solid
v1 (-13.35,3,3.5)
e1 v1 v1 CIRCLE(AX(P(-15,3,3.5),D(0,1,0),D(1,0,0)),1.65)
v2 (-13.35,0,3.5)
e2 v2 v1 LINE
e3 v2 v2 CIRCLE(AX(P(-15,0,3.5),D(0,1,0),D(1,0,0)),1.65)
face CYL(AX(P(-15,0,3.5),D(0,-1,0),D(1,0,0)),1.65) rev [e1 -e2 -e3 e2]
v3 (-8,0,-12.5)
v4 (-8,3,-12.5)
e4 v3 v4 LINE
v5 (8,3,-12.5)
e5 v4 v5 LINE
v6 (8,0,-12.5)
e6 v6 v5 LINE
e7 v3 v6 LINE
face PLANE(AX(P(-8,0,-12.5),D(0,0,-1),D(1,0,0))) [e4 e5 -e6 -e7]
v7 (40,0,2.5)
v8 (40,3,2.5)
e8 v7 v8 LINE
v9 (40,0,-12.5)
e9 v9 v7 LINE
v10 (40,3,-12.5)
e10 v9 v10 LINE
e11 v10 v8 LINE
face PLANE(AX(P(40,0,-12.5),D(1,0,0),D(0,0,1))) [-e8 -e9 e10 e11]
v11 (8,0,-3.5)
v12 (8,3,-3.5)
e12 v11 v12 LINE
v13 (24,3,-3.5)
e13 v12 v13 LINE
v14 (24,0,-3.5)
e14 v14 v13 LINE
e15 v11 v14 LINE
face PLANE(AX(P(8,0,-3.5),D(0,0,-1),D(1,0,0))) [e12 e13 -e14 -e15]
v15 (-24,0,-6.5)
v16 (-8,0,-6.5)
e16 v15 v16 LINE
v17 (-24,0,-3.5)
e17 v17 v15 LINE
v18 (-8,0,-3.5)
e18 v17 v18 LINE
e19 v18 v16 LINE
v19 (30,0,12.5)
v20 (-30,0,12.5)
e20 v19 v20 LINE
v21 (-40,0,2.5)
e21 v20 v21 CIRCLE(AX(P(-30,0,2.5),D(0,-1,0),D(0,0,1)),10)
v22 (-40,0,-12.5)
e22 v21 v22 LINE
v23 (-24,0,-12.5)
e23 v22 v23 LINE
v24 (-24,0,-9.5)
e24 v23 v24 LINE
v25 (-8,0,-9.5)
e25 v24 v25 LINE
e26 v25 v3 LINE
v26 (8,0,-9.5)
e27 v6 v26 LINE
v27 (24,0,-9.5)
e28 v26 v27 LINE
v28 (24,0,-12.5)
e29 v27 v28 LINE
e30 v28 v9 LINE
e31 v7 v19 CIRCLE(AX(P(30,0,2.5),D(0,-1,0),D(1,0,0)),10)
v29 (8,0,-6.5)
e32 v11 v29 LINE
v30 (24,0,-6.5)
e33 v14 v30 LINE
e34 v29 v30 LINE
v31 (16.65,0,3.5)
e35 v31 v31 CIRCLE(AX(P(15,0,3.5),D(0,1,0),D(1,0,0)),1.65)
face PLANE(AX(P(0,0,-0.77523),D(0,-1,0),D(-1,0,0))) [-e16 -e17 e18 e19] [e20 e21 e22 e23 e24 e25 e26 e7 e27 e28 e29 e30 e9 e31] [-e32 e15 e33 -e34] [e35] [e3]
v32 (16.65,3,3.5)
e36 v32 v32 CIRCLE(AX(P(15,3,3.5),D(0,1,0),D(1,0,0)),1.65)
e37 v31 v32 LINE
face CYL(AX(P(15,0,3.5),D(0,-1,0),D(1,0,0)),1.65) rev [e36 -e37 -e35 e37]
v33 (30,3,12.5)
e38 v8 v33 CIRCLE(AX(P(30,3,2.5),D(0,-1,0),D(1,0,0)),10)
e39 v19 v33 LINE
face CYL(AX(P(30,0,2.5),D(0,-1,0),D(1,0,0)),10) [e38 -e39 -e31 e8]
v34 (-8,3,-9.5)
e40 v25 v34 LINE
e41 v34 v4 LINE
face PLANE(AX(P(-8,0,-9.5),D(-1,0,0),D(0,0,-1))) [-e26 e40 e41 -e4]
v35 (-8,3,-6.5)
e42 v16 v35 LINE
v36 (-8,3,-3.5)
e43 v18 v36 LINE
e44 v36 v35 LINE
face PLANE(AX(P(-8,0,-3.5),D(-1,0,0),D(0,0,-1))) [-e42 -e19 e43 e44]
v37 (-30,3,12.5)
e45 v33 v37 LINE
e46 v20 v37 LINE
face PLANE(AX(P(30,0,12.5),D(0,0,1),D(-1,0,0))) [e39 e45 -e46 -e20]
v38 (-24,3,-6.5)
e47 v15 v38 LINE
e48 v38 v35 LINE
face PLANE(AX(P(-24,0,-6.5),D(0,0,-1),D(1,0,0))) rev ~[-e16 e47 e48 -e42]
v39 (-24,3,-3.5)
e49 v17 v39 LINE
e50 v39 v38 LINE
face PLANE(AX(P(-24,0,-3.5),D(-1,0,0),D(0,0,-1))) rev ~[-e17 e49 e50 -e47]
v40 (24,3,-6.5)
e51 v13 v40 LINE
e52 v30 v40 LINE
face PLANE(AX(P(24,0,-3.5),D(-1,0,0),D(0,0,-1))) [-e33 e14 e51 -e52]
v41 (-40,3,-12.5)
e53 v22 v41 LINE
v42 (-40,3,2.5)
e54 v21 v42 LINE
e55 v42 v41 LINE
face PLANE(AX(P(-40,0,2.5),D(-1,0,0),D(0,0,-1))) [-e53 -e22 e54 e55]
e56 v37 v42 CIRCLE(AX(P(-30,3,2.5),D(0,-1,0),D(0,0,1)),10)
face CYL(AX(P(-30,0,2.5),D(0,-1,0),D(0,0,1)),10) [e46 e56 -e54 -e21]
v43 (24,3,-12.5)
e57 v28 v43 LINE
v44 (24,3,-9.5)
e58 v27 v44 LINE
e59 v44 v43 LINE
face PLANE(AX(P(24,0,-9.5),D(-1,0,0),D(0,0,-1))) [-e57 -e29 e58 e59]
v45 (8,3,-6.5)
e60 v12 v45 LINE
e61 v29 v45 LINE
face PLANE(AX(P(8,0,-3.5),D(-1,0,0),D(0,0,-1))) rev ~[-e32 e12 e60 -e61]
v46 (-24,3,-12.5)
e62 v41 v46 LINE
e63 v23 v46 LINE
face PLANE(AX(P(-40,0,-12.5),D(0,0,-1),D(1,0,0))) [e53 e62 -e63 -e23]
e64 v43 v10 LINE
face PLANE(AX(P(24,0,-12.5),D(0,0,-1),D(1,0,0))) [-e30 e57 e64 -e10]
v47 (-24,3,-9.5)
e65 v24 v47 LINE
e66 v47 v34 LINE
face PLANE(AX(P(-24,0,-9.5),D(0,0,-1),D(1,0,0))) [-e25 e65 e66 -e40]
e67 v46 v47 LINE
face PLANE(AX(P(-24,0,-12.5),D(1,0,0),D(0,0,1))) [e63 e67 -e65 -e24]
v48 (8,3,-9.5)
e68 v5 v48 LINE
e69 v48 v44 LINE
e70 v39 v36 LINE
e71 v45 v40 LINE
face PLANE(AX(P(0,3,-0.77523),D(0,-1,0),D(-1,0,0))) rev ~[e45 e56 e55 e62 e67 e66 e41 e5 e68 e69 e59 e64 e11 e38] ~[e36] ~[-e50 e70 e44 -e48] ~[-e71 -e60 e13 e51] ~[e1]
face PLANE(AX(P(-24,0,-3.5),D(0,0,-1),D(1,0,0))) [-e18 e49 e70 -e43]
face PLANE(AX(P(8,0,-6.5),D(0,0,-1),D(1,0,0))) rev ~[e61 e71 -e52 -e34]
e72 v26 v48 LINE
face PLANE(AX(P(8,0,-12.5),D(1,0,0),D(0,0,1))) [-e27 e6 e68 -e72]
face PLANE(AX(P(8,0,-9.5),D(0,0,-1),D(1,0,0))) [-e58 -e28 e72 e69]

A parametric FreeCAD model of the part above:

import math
import FreeCAD as App
import Part
import Sketcher
from FreeCAD import Vector

doc = App.newDocument("Part")
body = doc.addObject("PartDesign::Body", "Body")

sketch1 = body.newObject("Sketcher::SketchObject", "Sketch")
sketch1.AttachmentSupport = (doc.getObject("XZ_Plane"), [""])
sketch1.MapMode = "FlatFace"
sketch1.addGeometry(Part.LineSegment(Vector(-30, 12.5, 0), Vector(30, 12.5, 0)), False)
sketch1.addGeometry(Part.ArcOfCircle(Part.Circle(Vector(30, 2.5, 0), Vector(0, 0, 1), 10), math.radians(0), math.radians(90)), False)
sketch1.addGeometry(Part.LineSegment(Vector(40, 2.5, 0), Vector(40, -12.5, 0)), False)
sketch1.addGeometry(Part.LineSegment(Vector(40, -12.5, 0), Vector(24, -12.5, 0)), False)
sketch1.addGeometry(Part.LineSegment(Vector(24, -12.5, 0), Vector(24, -9.5, 0)), False)
sketch1.addGeometry(Part.LineSegment(Vector(24, -9.5, 0), Vector(8, -9.5, 0)), False)
sketch1.addGeometry(Part.LineSegment(Vector(8, -9.5, 0), Vector(8, -12.5, 0)), False)
sketch1.addGeometry(Part.LineSegment(Vector(8, -12.5, 0), Vector(-8, -12.5, 0)), False)
sketch1.addGeometry(Part.LineSegment(Vector(-8, -12.5, 0), Vector(-8, -9.5, 0)), False)
sketch1.addGeometry(Part.LineSegment(Vector(-8, -9.5, 0), Vector(-24, -9.5, 0)), False)
sketch1.addGeometry(Part.LineSegment(Vector(-24, -9.5, 0), Vector(-24, -12.5, 0)), False)
sketch1.addGeometry(Part.LineSegment(Vector(-24, -12.5, 0), Vector(-40, -12.5, 0)), False)
sketch1.addGeometry(Part.LineSegment(Vector(-40, -12.5, 0), Vector(-40, 2.5, 0)), False)
sketch1.addGeometry(Part.ArcOfCircle(Part.Circle(Vector(-30, 2.5, 0), Vector(0, 0, 1), 10), math.radians(90), math.radians(180)), False)
sketch1.addGeometry(Part.Circle(Vector(15, 3.5, 0), Vector(0, 0, 1), 1.65), False)
sketch1.addGeometry(Part.Circle(Vector(-15, 3.5, 0), Vector(0, 0, 1), 1.65), False)
sketch1.addGeometry(Part.LineSegment(Vector(8, -3.5, 0), Vector(8, -6.5, 0)), False)
sketch1.addGeometry(Part.LineSegment(Vector(8, -6.5, 0), Vector(24, -6.5, 0)), False)
sketch1.addGeometry(Part.LineSegment(Vector(24, -6.5, 0), Vector(24, -3.5, 0)), False)
sketch1.addGeometry(Part.LineSegment(Vector(24, -3.5, 0), Vector(8, -3.5, 0)), False)
sketch1.addGeometry(Part.LineSegment(Vector(-24, -3.5, 0), Vector(-24, -6.5, 0)), False)
sketch1.addGeometry(Part.LineSegment(Vector(-24, -6.5, 0), Vector(-8, -6.5, 0)), False)
sketch1.addGeometry(Part.LineSegment(Vector(-8, -6.5, 0), Vector(-8, -3.5, 0)), False)
sketch1.addGeometry(Part.LineSegment(Vector(-8, -3.5, 0), Vector(-24, -3.5, 0)), False)
sketch1.addConstraint(Sketcher.Constraint("Tangent", 0, 2, 1, 2))
sketch1.addConstraint(Sketcher.Constraint("Tangent", 1, 1, 2, 1))
sketch1.addConstraint(Sketcher.Constraint("Coincident", 2, 2, 3, 1))
sketch1.addConstraint(Sketcher.Constraint("Coincident", 3, 2, 4, 1))
sketch1.addConstraint(Sketcher.Constraint("Coincident", 4, 2, 5, 1))
sketch1.addConstraint(Sketcher.Constraint("Coincident", 5, 2, 6, 1))
sketch1.addConstraint(Sketcher.Constraint("Coincident", 6, 2, 7, 1))
sketch1.addConstraint(Sketcher.Constraint("Coincident", 7, 2, 8, 1))
sketch1.addConstraint(Sketcher.Constraint("Coincident", 8, 2, 9, 1))
sketch1.addConstraint(Sketcher.Constraint("Coincident", 9, 2, 10, 1))
sketch1.addConstraint(Sketcher.Constraint("Coincident", 10, 2, 11, 1))
sketch1.addConstraint(Sketcher.Constraint("Coincident", 11, 2, 12, 1))
sketch1.addConstraint(Sketcher.Constraint("Tangent", 12, 2, 13, 2))
sketch1.addConstraint(Sketcher.Constraint("Tangent", 13, 1, 0, 1))
sketch1.addConstraint(Sketcher.Constraint("Coincident", 16, 2, 17, 1))
sketch1.addConstraint(Sketcher.Constraint("Coincident", 17, 2, 18, 1))
sketch1.addConstraint(Sketcher.Constraint("Coincident", 18, 2, 19, 1))
sketch1.addConstraint(Sketcher.Constraint("Coincident", 19, 2, 16, 1))
sketch1.addConstraint(Sketcher.Constraint("Coincident", 20, 2, 21, 1))
sketch1.addConstraint(Sketcher.Constraint("Coincident", 21, 2, 22, 1))
sketch1.addConstraint(Sketcher.Constraint("Coincident", 22, 2, 23, 1))
sketch1.addConstraint(Sketcher.Constraint("Coincident", 23, 2, 20, 1))
sketch1.addConstraint(Sketcher.Constraint("Horizontal", 0))
sketch1.addConstraint(Sketcher.Constraint("Vertical", 2))
sketch1.addConstraint(Sketcher.Constraint("Horizontal", 3))
sketch1.addConstraint(Sketcher.Constraint("Vertical", 4))
sketch1.addConstraint(Sketcher.Constraint("Horizontal", 5))
sketch1.addConstraint(Sketcher.Constraint("Vertical", 6))
sketch1.addConstraint(Sketcher.Constraint("Horizontal", 7))
sketch1.addConstraint(Sketcher.Constraint("Vertical", 8))
sketch1.addConstraint(Sketcher.Constraint("Horizontal", 9))
sketch1.addConstraint(Sketcher.Constraint("Vertical", 10))
sketch1.addConstraint(Sketcher.Constraint("Horizontal", 11))
sketch1.addConstraint(Sketcher.Constraint("Vertical", 12))
sketch1.addConstraint(Sketcher.Constraint("Vertical", 16))
sketch1.addConstraint(Sketcher.Constraint("Horizontal", 17))
sketch1.addConstraint(Sketcher.Constraint("Vertical", 18))
sketch1.addConstraint(Sketcher.Constraint("Horizontal", 19))
sketch1.addConstraint(Sketcher.Constraint("Vertical", 20))
sketch1.addConstraint(Sketcher.Constraint("Horizontal", 21))
sketch1.addConstraint(Sketcher.Constraint("Vertical", 22))
sketch1.addConstraint(Sketcher.Constraint("Horizontal", 23))
sketch1.addConstraint(Sketcher.Constraint("Equal", 1, 13))
sketch1.addConstraint(Sketcher.Constraint("Equal", 14, 15))
sketch1.addConstraint(Sketcher.Constraint("Symmetric", 14, 3, 15, 3, -2))
sketch1.addConstraint(Sketcher.Constraint("Symmetric", 5, 2, 8, 2, -2))
sketch1.addConstraint(Sketcher.Constraint("Symmetric", 3, 2, 10, 2, -2))
sketch1.addConstraint(Sketcher.Constraint("Symmetric", 17, 2, 20, 2, -2))
sketch1.addConstraint(Sketcher.Constraint("Symmetric", 19, 2, 22, 2, -2))
sketch1.addConstraint(Sketcher.Constraint("Horizontal", 3, 2, 6, 2))
sketch1.addConstraint(Sketcher.Constraint("Vertical", 6, 2, 16, 2))
sketch1.addConstraint(Sketcher.Constraint("Vertical", 4, 2, 17, 2))
sketch1.addConstraint(Sketcher.Constraint("Equal", 3, 5))
sketch1.addConstraint(Sketcher.Constraint("Equal", 5, 7))
sketch1.addConstraint(Sketcher.Constraint("Equal", 9, 11))
sketch1.addConstraint(Sketcher.Constraint("Equal", 10, 16))
sketch1.addConstraint(Sketcher.Constraint("Radius", 1, 10.0))
sketch1.addConstraint(Sketcher.Constraint("Diameter", 14, 3.3))
sketch1.addConstraint(Sketcher.Constraint("DistanceX", 0, 1, 0, 2, 60.0))
sketch1.addConstraint(Sketcher.Constraint("DistanceY", 2, 2, 2, 1, 15.0))
sketch1.addConstraint(Sketcher.Constraint("DistanceY", 4, 1, 4, 2, 3.0))
sketch1.addConstraint(Sketcher.Constraint("DistanceX", -1, 1, 14, 3, 15.0))
sketch1.addConstraint(Sketcher.Constraint("DistanceY", 1, 3, 14, 3, 1.0))
sketch1.addConstraint(Sketcher.Constraint("DistanceY", 5, 2, 16, 2, 3.0))
sketch1.addConstraint(Sketcher.Constraint("DistanceY", -1, 1, 1, 3, 2.5))
pad1 = body.newObject("PartDesign::Pad", "Pad")
pad1.Profile = sketch1
pad1.Length = 3
pad1.Reversed = True

doc.recompute()
